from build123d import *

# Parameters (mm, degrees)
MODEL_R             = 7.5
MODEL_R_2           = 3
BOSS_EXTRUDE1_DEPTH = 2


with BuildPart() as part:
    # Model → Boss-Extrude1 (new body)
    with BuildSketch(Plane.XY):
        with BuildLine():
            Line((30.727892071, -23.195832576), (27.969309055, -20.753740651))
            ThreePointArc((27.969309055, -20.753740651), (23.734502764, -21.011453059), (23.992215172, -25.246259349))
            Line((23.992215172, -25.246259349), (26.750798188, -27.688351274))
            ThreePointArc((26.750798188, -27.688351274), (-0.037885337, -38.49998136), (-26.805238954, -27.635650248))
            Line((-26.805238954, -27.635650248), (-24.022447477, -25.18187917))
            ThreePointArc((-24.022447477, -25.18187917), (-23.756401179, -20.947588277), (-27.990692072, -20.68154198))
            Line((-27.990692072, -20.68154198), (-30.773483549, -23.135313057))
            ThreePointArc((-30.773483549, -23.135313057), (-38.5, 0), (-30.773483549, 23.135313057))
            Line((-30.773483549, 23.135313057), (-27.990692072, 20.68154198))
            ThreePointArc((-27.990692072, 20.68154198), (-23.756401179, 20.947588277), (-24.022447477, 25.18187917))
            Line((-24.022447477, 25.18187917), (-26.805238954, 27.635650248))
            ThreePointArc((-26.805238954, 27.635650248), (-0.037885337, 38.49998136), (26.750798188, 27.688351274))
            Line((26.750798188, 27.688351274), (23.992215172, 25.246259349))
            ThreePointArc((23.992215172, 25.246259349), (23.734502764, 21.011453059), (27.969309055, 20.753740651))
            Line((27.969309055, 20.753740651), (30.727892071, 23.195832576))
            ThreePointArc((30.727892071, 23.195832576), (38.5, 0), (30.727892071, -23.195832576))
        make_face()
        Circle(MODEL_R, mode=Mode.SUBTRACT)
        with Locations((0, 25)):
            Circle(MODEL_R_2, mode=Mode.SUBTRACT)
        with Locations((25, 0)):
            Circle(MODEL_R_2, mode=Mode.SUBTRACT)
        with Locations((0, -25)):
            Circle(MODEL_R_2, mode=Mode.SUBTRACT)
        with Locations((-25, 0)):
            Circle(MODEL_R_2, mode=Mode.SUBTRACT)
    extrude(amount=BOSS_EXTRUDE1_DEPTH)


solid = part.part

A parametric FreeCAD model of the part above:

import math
import FreeCAD as App
import Part
import Sketcher

V = App.Vector
Q = App.Units.Quantity

doc = App.newDocument("Part")
body = doc.addObject("PartDesign::Body", "Body")

sketch1 = body.newObject("Sketcher::SketchObject", "Sketch")
sketch1.AttachmentSupport = (doc.getObject("XY_Plane"), [""])
sketch1.MapMode = "FlatFace"
sketch1.addGeometry(Part.LineSegment(V(27.969309, -20.753741, 0), V(30.727892, -23.195833, 0)), False)
sketch1.addGeometry(Part.ArcOfCircle(Part.Circle(V(0, 0, 0), V(0, 0, 1), 38.5), math.radians(-37.048379), math.radians(37.048379)), False)
sketch1.addGeometry(Part.LineSegment(V(30.727892, 23.195833, 0), V(27.969309, 20.753741, 0)), False)
sketch1.addGeometry(Part.ArcOfCircle(Part.Circle(V(25.980762, 23, 0), V(0, 0, 1), 3), math.radians(131.517516), math.radians(311.517516)), False)
sketch1.addGeometry(Part.LineSegment(V(23.992215, 25.246259, 0), V(26.750798, 27.688351, 0)), False)
sketch1.addGeometry(Part.ArcOfCircle(Part.Circle(V(0, 0, 0), V(0, 0, 1), 38.5), math.radians(45.986653), math.radians(134.12611)), False)
sketch1.addGeometry(Part.LineSegment(V(-26.805239, 27.63565, 0), V(-24.022447, 25.181879, 0)), False)
sketch1.addGeometry(Part.ArcOfCircle(Part.Circle(V(-26.00657, 22.931711, 0), V(0, 0, 1), 3), math.radians(-131.404754), math.radians(48.595246)), False)
sketch1.addGeometry(Part.LineSegment(V(-27.990692, 20.681542, 0), V(-30.773484, 23.135313, 0)), False)
sketch1.addGeometry(Part.ArcOfCircle(Part.Circle(V(0, 0, 0), V(0, 0, 1), 38.5), math.radians(143.064383), math.radians(216.935617)), False)
sketch1.addGeometry(Part.LineSegment(V(-30.773484, -23.135313, 0), V(-27.990692, -20.681542, 0)), False)
sketch1.addGeometry(Part.ArcOfCircle(Part.Circle(V(-26.00657, -22.931711, 0), V(0, 0, 1), 3), math.radians(-48.595246), math.radians(131.404754)), False)
sketch1.addGeometry(Part.LineSegment(V(-24.022447, -25.181879, 0), V(-26.805239, -27.63565, 0)), False)
sketch1.addGeometry(Part.ArcOfCircle(Part.Circle(V(0, 0, 0), V(0, 0, 1), 38.5), math.radians(-134.12611), math.radians(-45.986653)), False)
sketch1.addGeometry(Part.LineSegment(V(26.750798, -27.688351, 0), V(23.992215, -25.246259, 0)), False)
sketch1.addGeometry(Part.ArcOfCircle(Part.Circle(V(25.980762, -23, 0), V(0, 0, 1), 3), math.radians(48.482484), math.radians(228.482484)), False)
sketch1.addGeometry(Part.Circle(V(0, -25, 0), V(0, 0, 1), 3), False)
sketch1.addGeometry(Part.Circle(V(25, 0, 0), V(0, 0, 1), 3), False)
sketch1.addGeometry(Part.Circle(V(0, 0, 0), V(0, 0, 1), 7.5), False)
sketch1.addGeometry(Part.Circle(V(-25, 0, 0), V(0, 0, 1), 3), False)
sketch1.addGeometry(Part.Circle(V(0, 25, 0), V(0, 0, 1), 3), False)
sketch1.addConstraint(Sketcher.Constraint("Coincident", 0, 2, 1, 1))
sketch1.addConstraint(Sketcher.Constraint("Coincident", 1, 2, 2, 1))
sketch1.addConstraint(Sketcher.Constraint("Tangent", 2, 2, 3, 2))
sketch1.addConstraint(Sketcher.Constraint("Tangent", 3, 1, 4, 1))
sketch1.addConstraint(Sketcher.Constraint("Coincident", 4, 2, 5, 1))
sketch1.addConstraint(Sketcher.Constraint("Coincident", 5, 2, 6, 1))
sketch1.addConstraint(Sketcher.Constraint("Tangent", 6, 2, 7, 2))
sketch1.addConstraint(Sketcher.Constraint("Tangent", 7, 1, 8, 1))
sketch1.addConstraint(Sketcher.Constraint("Coincident", 8, 2, 9, 1))
sketch1.addConstraint(Sketcher.Constraint("Coincident", 9, 2, 10, 1))
sketch1.addConstraint(Sketcher.Constraint("Tangent", 10, 2, 11, 2))
sketch1.addConstraint(Sketcher.Constraint("Tangent", 11, 1, 12, 1))
sketch1.addConstraint(Sketcher.Constraint("Coincident", 12, 2, 13, 1))
sketch1.addConstraint(Sketcher.Constraint("Coincident", 13, 2, 14, 1))
sketch1.addConstraint(Sketcher.Constraint("Tangent", 14, 2, 15, 2))
sketch1.addConstraint(Sketcher.Constraint("Tangent", 15, 1, 0, 1))
sketch1.addConstraint(Sketcher.Constraint("Coincident", 1, 3, -1, 1))
sketch1.addConstraint(Sketcher.Constraint("Coincident", 5, 3, -1, 1))
sketch1.addConstraint(Sketcher.Constraint("Coincident", 9, 3, -1, 1))
sketch1.addConstraint(Sketcher.Constraint("Coincident", 13, 3, -1, 1))
sketch1.addConstraint(Sketcher.Constraint("Coincident", 18, 3, -1, 1))
sketch1.addConstraint(Sketcher.Constraint("Equal", 1, 5))
sketch1.addConstraint(Sketcher.Constraint("Equal", 3, 7))
sketch1.addConstraint(Sketcher.Constraint("Equal", 5, 9))
sketch1.addConstraint(Sketcher.Constraint("Equal", 7, 11))
sketch1.addConstraint(Sketcher.Constraint("Equal", 9, 13))
sketch1.addConstraint(Sketcher.Constraint("Equal", 11, 15))
sketch1.addConstraint(Sketcher.Constraint("Equal", 15, 16))
sketch1.addConstraint(Sketcher.Constraint("Equal", 16, 17))
sketch1.addConstraint(Sketcher.Constraint("Equal", 17, 19))
sketch1.addConstraint(Sketcher.Constraint("Equal", 19, 20))
sketch1.addConstraint(Sketcher.Constraint("Symmetric", 17, 3, 19, 3, -1, 1))
sketch1.addConstraint(Sketcher.Constraint("Symmetric", 16, 3, 20, 3, -1, 1))
sketch1.addConstraint(Sketcher.Constraint("Symmetric", 7, 3, 11, 3, -1))
sketch1.addConstraint(Sketcher.Constraint("Symmetric", 3, 3, 15, 3, -1))
sketch1.addConstraint(Sketcher.Constraint("PointOnObject", 16, 3, -2))
sketch1.addConstraint(Sketcher.Constraint("PointOnObject", 17, 3, -1))
sketch1.addConstraint(Sketcher.Constraint("Parallel", 2, 4))
sketch1.addConstraint(Sketcher.Constraint("Parallel", 6, 8))
sketch1.addConstraint(Sketcher.Constraint("Parallel", 10, 12))
sketch1.addConstraint(Sketcher.Constraint("Parallel", 0, 14))
sketch1.addConstraint(Sketcher.Constraint("Vertical", 0, 2, 1, 2))
sketch1.addConstraint(Sketcher.Constraint("Vertical", 8, 2, 9, 2))
sketch1.addConstraint(Sketcher.Constraint("Equal", 2, 4))
sketch1.addConstraint(Sketcher.Constraint("Equal", 6, 8))
sketch1.addConstraint(Sketcher.Constraint("Diameter", 16, Q("6 mm")))
sketch1.addConstraint(Sketcher.Constraint("Diameter", 18, Q("15 mm")))
sketch1.addConstraint(Sketcher.Constraint("Radius", 1, Q("38.5 mm")))
sketch1.addConstraint(Sketcher.Constraint("DistanceY", -1, 1, 3, 3, Q("23 mm")))
sketch1.addConstraint(Sketcher.Constraint("DistanceY", 16, 3, -1, 1, Q("25 mm")))
sketch1.addConstraint(Sketcher.Constraint("DistanceX", -1, 1, 17, 3, Q("25 mm")))
sketch1.addConstraint(Sketcher.Constraint("DistanceX", -1, 1, 4, 2, Q("26.750798 mm")))
sketch1.addConstraint(Sketcher.Constraint("Distance", 6, Q("3.710111 mm")))
sketch1.addConstraint(Sketcher.Constraint("DistanceX", 7, 3, -1, 1, Q("26.00657 mm")))
pad1 = body.newObject("PartDesign::Pad", "Pad")
pad1.Profile = sketch1
pad1.Length = 2

doc.recompute()
